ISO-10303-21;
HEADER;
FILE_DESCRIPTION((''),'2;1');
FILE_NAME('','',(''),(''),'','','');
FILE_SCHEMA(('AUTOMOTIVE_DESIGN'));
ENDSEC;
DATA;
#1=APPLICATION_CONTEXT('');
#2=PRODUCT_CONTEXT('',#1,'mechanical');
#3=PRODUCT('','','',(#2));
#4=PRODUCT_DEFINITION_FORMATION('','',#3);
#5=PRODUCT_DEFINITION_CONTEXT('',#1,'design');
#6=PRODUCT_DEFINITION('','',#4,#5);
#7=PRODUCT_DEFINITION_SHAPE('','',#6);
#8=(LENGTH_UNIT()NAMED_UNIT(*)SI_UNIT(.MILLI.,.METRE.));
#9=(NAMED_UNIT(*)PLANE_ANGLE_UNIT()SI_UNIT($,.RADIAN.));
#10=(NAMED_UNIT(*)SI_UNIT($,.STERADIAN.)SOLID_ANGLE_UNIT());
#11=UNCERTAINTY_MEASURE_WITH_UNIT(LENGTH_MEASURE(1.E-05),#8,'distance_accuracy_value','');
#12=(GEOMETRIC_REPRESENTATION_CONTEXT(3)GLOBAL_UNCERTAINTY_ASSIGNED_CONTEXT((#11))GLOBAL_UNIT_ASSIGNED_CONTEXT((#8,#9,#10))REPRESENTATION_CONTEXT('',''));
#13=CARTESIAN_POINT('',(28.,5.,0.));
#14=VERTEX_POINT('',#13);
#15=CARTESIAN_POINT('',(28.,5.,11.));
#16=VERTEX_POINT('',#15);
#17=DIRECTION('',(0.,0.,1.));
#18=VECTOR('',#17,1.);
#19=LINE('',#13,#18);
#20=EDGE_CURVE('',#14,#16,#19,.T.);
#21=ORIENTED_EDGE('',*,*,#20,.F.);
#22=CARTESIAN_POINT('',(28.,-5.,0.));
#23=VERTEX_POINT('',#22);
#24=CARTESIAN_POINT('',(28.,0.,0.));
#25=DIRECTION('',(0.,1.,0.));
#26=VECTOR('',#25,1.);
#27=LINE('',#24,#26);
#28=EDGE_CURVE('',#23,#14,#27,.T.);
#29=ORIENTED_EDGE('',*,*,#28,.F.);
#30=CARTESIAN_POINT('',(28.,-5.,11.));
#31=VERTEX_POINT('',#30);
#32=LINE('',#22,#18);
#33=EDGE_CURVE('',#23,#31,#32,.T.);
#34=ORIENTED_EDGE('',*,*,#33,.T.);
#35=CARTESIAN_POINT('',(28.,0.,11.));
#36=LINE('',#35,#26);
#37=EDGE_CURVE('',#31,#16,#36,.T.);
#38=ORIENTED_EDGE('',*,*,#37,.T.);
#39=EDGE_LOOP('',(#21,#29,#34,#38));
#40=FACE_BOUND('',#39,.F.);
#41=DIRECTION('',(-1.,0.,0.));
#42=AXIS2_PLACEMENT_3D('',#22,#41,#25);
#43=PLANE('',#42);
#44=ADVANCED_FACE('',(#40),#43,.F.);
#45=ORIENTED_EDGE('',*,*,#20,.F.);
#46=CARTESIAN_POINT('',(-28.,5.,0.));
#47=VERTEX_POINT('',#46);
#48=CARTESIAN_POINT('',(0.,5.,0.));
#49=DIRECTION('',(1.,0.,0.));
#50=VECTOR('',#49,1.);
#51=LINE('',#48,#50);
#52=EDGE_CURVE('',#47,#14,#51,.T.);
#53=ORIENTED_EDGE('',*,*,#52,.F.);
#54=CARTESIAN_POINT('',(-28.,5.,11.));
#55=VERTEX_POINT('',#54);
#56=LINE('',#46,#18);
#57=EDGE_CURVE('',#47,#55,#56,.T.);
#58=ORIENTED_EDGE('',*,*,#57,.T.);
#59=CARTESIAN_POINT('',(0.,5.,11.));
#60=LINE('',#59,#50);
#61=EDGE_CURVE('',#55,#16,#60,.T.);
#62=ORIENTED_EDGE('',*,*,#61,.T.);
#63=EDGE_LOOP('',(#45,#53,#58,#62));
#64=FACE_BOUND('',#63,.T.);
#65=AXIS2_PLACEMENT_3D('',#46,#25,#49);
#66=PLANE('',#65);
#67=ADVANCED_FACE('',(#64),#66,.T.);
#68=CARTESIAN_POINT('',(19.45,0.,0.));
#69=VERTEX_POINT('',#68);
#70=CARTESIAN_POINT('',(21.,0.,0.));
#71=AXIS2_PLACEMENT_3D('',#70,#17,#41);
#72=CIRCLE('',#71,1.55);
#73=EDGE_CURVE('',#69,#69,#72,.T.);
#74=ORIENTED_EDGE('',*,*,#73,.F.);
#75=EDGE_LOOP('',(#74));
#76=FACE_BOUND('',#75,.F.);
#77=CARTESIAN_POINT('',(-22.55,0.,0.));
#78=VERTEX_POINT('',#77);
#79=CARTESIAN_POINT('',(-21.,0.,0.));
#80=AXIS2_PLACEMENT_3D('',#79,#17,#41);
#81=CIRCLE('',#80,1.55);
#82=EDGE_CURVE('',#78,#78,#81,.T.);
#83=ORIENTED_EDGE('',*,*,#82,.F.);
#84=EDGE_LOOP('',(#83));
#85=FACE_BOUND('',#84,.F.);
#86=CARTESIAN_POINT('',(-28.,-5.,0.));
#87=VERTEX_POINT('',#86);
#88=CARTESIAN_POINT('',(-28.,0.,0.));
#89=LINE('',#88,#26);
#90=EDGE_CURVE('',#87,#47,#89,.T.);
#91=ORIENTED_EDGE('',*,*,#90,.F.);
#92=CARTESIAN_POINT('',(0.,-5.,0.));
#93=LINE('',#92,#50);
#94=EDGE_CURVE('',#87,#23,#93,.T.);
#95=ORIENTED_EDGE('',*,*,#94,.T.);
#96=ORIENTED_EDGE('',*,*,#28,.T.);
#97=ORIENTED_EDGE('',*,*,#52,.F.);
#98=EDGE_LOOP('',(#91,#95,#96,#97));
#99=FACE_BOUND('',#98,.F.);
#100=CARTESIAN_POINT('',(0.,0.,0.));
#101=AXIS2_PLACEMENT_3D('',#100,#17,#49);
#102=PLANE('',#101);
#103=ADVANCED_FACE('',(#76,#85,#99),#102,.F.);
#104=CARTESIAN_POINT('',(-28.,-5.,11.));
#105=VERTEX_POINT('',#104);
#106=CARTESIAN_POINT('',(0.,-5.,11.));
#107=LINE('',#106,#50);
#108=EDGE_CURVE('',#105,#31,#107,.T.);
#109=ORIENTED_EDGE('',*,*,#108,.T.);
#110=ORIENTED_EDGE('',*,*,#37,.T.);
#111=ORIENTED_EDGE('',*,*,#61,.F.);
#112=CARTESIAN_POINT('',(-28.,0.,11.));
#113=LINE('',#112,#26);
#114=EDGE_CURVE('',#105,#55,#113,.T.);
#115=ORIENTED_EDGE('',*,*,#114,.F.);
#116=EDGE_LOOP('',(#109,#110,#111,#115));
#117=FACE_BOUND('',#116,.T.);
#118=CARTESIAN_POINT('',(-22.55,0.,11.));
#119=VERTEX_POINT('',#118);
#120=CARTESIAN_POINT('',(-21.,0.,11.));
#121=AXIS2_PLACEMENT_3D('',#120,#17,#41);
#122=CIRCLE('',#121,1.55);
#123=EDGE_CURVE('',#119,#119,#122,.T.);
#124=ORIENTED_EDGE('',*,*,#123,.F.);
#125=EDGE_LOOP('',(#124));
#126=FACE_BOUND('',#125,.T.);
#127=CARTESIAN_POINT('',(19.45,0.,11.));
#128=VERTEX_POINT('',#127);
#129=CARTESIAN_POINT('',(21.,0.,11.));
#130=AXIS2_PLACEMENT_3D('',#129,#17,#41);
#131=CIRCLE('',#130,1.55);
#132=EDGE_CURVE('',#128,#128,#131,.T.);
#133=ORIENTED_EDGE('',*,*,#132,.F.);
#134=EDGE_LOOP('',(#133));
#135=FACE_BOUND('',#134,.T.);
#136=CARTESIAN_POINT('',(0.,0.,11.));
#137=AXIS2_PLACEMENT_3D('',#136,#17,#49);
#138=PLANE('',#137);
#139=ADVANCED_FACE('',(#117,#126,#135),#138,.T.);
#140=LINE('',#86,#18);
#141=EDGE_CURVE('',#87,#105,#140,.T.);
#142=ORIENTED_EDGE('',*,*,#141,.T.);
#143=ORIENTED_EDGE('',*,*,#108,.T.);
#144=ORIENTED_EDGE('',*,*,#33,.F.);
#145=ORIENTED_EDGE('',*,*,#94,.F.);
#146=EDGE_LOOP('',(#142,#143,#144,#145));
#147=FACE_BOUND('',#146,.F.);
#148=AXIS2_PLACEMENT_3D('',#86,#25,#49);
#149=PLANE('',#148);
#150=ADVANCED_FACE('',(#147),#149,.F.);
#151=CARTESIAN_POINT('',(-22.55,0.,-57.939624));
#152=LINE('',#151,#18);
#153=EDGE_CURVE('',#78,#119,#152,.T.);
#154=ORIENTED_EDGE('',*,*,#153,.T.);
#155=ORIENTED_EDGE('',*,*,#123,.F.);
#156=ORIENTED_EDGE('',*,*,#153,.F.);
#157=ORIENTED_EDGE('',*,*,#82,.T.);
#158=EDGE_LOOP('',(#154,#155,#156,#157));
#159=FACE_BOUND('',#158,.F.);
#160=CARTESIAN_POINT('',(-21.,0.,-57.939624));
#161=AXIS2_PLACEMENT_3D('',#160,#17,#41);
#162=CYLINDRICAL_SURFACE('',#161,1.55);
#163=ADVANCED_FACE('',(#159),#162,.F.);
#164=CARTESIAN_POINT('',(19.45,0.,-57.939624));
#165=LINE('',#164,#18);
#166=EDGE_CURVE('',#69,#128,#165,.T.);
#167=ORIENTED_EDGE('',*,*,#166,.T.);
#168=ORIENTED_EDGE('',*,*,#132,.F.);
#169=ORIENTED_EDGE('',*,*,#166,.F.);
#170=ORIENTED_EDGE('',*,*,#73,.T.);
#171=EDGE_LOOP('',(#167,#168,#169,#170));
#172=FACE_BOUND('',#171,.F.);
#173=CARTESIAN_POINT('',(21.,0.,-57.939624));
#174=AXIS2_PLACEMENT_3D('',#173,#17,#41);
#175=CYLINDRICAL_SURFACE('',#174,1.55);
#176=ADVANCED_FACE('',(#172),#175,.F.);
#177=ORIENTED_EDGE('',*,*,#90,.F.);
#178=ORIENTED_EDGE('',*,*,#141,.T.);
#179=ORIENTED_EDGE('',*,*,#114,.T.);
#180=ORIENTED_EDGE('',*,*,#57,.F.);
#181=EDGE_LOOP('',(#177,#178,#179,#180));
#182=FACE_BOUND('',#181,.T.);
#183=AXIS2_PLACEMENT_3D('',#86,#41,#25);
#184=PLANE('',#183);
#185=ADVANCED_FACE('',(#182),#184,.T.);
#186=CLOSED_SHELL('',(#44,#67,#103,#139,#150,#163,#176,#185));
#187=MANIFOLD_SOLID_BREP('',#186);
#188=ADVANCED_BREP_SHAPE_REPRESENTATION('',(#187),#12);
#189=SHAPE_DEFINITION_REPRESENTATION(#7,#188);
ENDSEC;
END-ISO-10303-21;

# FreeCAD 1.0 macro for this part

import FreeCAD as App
import Part
import Sketcher
from FreeCAD import Vector

doc = App.newDocument("Part")
body = doc.addObject("PartDesign::Body", "Body")

sketch1 = body.newObject("Sketcher::SketchObject", "Sketch")
sketch1.AttachmentSupport = (doc.getObject("XY_Plane"), [""])
sketch1.MapMode = "FlatFace"
sketch1.addGeometry([
    Part.LineSegment(Vector(-28, 5, 0), Vector(-28, -5, 0)),
    Part.LineSegment(Vector(-28, -5, 0), Vector(28, -5, 0)),
    Part.LineSegment(Vector(28, -5, 0), Vector(28, 5, 0)),
    Part.LineSegment(Vector(28, 5, 0), Vector(-28, 5, 0)),
], False)
sketch1.addConstraint([
    Sketcher.Constraint("Coincident", 0, 2, 1, 1),
    Sketcher.Constraint("Coincident", 1, 2, 2, 1),
    Sketcher.Constraint("Coincident", 2, 2, 3, 1),
    Sketcher.Constraint("Coincident", 3, 2, 0, 1),
    Sketcher.Constraint("Vertical", 0),
    Sketcher.Constraint("Horizontal", 1),
    Sketcher.Constraint("Vertical", 2),
    Sketcher.Constraint("Horizontal", 3),
    Sketcher.Constraint("Symmetric", 0, 2, 2, 2, -1, 1),
    Sketcher.Constraint("DistanceX", 1, 1, 1, 2, 56.0),
    Sketcher.Constraint("DistanceY", 0, 2, 0, 1, 10.0),
])
pad1 = body.newObject("PartDesign::Pad", "Pad")
pad1.Profile = sketch1
pad1.Length = 11

sketch2 = body.newObject("Sketcher::SketchObject", "Sketch001")
sketch2.AttachmentSupport = (doc.getObject("XY_Plane"), [""])
sketch2.MapMode = "FlatFace"
sketch2.addGeometry([
    Part.Circle(Vector(21, 0, 0), Vector(0, 0, 1), 1.6),
    Part.Circle(Vector(-21, 0, 0), Vector(0, 0, 1), 1.6),
], False)
sketch2.addConstraint([
    Sketcher.Constraint("Equal", 0, 1),
    Sketcher.Constraint("Symmetric", 0, 3, 1, 3, -1, 1),
    Sketcher.Constraint("PointOnObject", 0, 3, -1),
    Sketcher.Constraint("Diameter", 0, 3.1),
    Sketcher.Constraint("DistanceX", -1, 1, 0, 3, 21.0),
])
doc.recompute()
hole = body.newObject("PartDesign::Hole", "Hole")
hole.Profile = sketch2
hole.ThreadType = "None"
hole.Diameter = 3.1
hole.DepthType = "ThroughAll"
hole.Reversed = True

doc.recompute()
